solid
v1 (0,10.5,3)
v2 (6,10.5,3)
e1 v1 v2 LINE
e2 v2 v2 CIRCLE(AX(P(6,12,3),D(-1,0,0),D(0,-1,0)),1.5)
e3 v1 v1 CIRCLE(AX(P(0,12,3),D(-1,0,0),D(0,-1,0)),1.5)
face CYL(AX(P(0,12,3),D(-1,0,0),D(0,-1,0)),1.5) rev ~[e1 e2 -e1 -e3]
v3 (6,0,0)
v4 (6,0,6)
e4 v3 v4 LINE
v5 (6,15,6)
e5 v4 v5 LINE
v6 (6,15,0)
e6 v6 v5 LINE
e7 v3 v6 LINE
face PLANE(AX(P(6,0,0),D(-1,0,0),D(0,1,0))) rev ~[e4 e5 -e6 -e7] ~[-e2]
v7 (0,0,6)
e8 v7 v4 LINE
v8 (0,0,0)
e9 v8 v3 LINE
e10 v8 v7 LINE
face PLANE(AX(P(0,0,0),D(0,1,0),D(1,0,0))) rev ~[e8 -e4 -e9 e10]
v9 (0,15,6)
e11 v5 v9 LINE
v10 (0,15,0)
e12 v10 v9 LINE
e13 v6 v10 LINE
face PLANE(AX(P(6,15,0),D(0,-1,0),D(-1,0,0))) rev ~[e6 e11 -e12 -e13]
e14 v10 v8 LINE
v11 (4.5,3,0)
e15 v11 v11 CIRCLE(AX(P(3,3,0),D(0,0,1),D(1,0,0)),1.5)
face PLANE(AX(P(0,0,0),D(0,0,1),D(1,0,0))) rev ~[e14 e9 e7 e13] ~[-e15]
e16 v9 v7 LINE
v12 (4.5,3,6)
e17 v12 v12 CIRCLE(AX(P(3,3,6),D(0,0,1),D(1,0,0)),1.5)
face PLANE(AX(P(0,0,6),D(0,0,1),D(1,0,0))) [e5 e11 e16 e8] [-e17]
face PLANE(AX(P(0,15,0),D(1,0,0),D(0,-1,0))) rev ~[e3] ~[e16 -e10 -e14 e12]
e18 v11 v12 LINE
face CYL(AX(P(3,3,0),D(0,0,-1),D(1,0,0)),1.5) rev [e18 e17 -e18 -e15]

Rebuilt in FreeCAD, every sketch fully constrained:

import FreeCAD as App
import Part
import Sketcher
from FreeCAD import Vector
Q = App.Units.Quantity

doc = App.newDocument("Part")
body = doc.addObject("PartDesign::Body", "Body")

sketch1 = body.newObject("Sketcher::SketchObject", "Sketch")
sketch1.AttachmentSupport = (doc.getObject("XY_Plane"), [""])
sketch1.MapMode = "FlatFace"
sketch1.addGeometry([
    Part.LineSegment(Vector(0, 15, 0), Vector(0, 0, 0)),
    Part.LineSegment(Vector(0, 0, 0), Vector(6, 0, 0)),
    Part.LineSegment(Vector(6, 0, 0), Vector(6, 15, 0)),
    Part.LineSegment(Vector(6, 15, 0), Vector(0, 15, 0)),
    Part.Circle(Vector(3, 3, 0), Vector(0, 0, 1), 1.5),
], False)
sketch1.addConstraint([
    Sketcher.Constraint("Coincident", 0, 2, 1, 1),
    Sketcher.Constraint("Coincident", 1, 2, 2, 1),
    Sketcher.Constraint("Coincident", 2, 2, 3, 1),
    Sketcher.Constraint("Coincident", 3, 2, 0, 1),
    Sketcher.Constraint("Vertical", 0),
    Sketcher.Constraint("Horizontal", 1),
    Sketcher.Constraint("Vertical", 2),
    Sketcher.Constraint("Horizontal", 3),
    Sketcher.Constraint("Coincident", 0, 2, -1, 1),
    Sketcher.Constraint("Diameter", 4, Q("3 mm")),
    Sketcher.Constraint("DistanceX", 1, 1, 1, 2, Q("6 mm")),
    Sketcher.Constraint("DistanceY", 0, 2, 0, 1, Q("15 mm")),
    Sketcher.Constraint("DistanceX", -1, 1, 4, 3, Q("3 mm")),
    Sketcher.Constraint("DistanceY", -1, 1, 4, 3, Q("3 mm")),
])
pad1 = body.newObject("PartDesign::Pad", "Pad")
pad1.Profile = sketch1
pad1.Length = 6

sketch2 = body.newObject("Sketcher::SketchObject", "Sketch001")
sketch2.AttachmentSupport = (doc.getObject("YZ_Plane"), [""])
sketch2.MapMode = "FlatFace"
sketch2.addGeometry(Part.Circle(Vector(12, 3, 0), Vector(0, 0, 1), 1.5), False)
sketch2.addConstraint([
    Sketcher.Constraint("Diameter", 0, Q("3 mm")),
    Sketcher.Constraint("DistanceY", -1, 1, 0, 3, Q("3 mm")),
    Sketcher.Constraint("DistanceX", -1, 1, 0, 3, Q("12 mm")),
])
pocket1 = body.newObject("PartDesign::Pocket", "Pocket")
pocket1.Profile = sketch2
pocket1.Length = 6
pocket1.Reversed = True

doc.recompute()
